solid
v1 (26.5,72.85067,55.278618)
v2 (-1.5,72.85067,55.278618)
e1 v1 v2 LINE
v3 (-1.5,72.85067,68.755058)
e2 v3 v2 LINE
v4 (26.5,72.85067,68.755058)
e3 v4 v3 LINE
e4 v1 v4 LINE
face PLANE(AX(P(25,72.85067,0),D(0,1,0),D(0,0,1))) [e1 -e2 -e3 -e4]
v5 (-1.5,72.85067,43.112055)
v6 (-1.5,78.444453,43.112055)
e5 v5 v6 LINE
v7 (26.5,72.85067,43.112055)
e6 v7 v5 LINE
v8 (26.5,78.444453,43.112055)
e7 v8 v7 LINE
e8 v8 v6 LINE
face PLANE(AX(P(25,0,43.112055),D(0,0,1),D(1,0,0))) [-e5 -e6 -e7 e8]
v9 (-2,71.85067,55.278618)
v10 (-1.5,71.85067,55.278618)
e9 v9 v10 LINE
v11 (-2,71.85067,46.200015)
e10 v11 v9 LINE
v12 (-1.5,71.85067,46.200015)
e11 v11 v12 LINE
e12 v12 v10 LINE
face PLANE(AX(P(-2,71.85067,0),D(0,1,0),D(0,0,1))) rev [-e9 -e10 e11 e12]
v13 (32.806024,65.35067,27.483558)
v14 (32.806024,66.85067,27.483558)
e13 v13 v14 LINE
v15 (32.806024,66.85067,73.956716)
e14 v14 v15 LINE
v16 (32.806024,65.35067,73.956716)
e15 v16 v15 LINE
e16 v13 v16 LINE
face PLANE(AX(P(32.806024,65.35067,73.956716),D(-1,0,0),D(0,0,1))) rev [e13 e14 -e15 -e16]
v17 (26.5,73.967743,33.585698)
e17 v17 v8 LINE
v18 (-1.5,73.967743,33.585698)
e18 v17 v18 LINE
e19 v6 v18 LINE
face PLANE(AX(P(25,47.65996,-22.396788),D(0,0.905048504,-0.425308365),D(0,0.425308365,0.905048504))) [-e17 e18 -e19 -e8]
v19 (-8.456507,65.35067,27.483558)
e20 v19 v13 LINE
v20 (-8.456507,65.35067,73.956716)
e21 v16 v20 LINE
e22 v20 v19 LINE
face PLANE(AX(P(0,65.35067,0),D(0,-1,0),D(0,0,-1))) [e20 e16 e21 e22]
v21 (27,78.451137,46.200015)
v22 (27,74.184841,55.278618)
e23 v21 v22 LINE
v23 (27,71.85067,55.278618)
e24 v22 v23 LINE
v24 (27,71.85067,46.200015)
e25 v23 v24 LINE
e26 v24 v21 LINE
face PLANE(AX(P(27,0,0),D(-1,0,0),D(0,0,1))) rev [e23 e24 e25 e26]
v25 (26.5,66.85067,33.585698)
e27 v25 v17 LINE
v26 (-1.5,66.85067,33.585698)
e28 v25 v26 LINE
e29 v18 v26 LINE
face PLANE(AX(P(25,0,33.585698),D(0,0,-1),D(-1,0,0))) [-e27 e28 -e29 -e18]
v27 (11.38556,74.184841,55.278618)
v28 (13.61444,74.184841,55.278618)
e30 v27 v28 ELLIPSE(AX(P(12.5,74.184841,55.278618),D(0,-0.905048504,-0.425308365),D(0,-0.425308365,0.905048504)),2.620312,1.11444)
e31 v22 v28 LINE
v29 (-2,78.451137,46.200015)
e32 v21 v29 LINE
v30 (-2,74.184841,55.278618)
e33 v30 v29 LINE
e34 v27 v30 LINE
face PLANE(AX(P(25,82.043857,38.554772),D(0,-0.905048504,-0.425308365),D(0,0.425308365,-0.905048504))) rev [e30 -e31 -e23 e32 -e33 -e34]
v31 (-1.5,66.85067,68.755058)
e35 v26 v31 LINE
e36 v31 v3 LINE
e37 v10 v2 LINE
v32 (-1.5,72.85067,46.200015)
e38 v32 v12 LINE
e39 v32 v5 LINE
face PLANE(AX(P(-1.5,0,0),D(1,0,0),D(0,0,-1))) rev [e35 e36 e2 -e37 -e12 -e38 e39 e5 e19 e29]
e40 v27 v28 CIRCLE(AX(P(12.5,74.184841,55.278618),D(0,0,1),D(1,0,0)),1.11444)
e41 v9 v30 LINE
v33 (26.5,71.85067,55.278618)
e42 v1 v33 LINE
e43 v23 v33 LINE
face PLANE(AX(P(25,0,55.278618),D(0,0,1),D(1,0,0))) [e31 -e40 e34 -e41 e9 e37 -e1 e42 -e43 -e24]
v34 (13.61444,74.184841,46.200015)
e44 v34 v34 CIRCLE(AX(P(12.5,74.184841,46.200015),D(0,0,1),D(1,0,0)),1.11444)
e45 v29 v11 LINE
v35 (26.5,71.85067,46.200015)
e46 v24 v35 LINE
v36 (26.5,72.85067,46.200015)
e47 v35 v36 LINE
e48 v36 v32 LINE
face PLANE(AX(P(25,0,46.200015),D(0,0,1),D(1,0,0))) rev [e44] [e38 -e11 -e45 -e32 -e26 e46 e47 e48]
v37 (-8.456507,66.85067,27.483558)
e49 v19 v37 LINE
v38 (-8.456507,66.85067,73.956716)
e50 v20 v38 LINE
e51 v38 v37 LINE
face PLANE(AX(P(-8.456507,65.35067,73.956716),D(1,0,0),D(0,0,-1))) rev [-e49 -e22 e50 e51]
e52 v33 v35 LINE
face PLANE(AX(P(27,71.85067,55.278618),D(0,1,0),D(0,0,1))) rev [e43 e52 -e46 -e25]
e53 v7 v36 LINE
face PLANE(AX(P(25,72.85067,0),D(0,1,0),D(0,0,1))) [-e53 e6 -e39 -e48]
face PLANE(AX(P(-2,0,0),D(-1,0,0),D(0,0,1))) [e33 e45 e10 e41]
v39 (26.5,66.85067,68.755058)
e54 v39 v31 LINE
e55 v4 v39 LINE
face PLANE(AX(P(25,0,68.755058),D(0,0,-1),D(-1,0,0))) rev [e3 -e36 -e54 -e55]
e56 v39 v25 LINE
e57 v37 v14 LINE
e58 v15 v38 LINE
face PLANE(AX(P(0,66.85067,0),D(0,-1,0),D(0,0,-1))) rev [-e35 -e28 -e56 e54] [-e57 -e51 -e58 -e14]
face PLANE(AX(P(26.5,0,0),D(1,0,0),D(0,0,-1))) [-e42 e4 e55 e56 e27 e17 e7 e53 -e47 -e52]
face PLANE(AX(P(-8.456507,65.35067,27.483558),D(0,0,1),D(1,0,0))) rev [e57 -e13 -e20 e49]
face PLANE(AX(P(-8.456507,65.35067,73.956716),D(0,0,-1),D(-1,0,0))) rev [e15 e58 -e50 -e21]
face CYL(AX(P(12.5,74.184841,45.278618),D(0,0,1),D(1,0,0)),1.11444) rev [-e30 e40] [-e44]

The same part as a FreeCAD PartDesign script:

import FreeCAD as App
import Part
import Sketcher
Q = App.Units.Quantity

doc = App.newDocument("Part")
params = doc.addObject("Spreadsheet::Sheet", "Params")
for row, (alias, value) in enumerate([
    ("sketch1_width", "6 mm"),
    ("pad1_length", "25 mm"),
    ("sketch2_width", "6 mm"),
    ("pad2_length", "1.5 mm"),
    ("sketch3_width", "6 mm"),
    ("pad3_length", "1.5 mm"),
    ("pad4_length", "1.5 mm"),
    ("pad5_length", "2 mm"),
    ("pad6_length", "2 mm"),
    ("sketch7_width", "1 mm"),
    ("pad7_length", "0.5 mm"),
    ("sketch8_width", "1 mm"),
    ("pad8_length", "0.5 mm"),
    ("pad9_length", "1.5 mm"),
    ("pad10_length", "1.5 mm"),
    ("pocket1_length", "10 mm"),
], start=1):
    params.set(f"A{row}", alias)
    params.set(f"B{row}", "=" + value)
    params.setAlias(f"B{row}", alias)

body = doc.addObject("PartDesign::Body", "Body")

sketch1 = body.newObject("Sketcher::SketchObject", "Sketch")
sketch1.AttachmentSupport = (doc.getObject("YZ_Plane"), [""])
sketch1.MapMode = "FlatFace"
sketch1.addGeometry([
    Part.LineSegment(App.Vector(72.85067, 46.200015, 0), App.Vector(78.451138, 46.200015, 0)),
    Part.LineSegment(App.Vector(78.451138, 46.200015, 0), App.Vector(74.184841, 55.278618, 0)),
    Part.LineSegment(App.Vector(74.184841, 55.278618, 0), App.Vector(72.85067, 55.278618, 0)),
    Part.LineSegment(App.Vector(72.85067, 55.278618, 0), App.Vector(72.85067, 68.755058, 0)),
    Part.LineSegment(App.Vector(72.85067, 68.755058, 0), App.Vector(66.85067, 68.755058, 0)),
    Part.LineSegment(App.Vector(66.85067, 68.755058, 0), App.Vector(66.85067, 33.585698, 0)),
    Part.LineSegment(App.Vector(66.85067, 33.585698, 0), App.Vector(72.85067, 33.585698, 0)),
    Part.LineSegment(App.Vector(72.85067, 33.585698, 0), App.Vector(73.967743, 33.585698, 0)),
    Part.LineSegment(App.Vector(73.967743, 33.585698, 0), App.Vector(78.444453, 43.112055, 0)),
    Part.LineSegment(App.Vector(78.444453, 43.112055, 0), App.Vector(72.85067, 43.112055, 0)),
    Part.LineSegment(App.Vector(72.85067, 43.112055, 0), App.Vector(72.85067, 46.200015, 0)),
], False)
sketch1.addConstraint([
    Sketcher.Constraint("Coincident", 0, 2, 1, 1),
    Sketcher.Constraint("Coincident", 1, 2, 2, 1),
    Sketcher.Constraint("Coincident", 2, 2, 3, 1),
    Sketcher.Constraint("Coincident", 3, 2, 4, 1),
    Sketcher.Constraint("Coincident", 4, 2, 5, 1),
    Sketcher.Constraint("Coincident", 5, 2, 6, 1),
    Sketcher.Constraint("Coincident", 6, 2, 7, 1),
    Sketcher.Constraint("Coincident", 7, 2, 8, 1),
    Sketcher.Constraint("Coincident", 8, 2, 9, 1),
    Sketcher.Constraint("Coincident", 9, 2, 10, 1),
    Sketcher.Constraint("Coincident", 10, 2, 0, 1),
    Sketcher.Constraint("Horizontal", 0),
    Sketcher.Constraint("Horizontal", 2),
    Sketcher.Constraint("Vertical", 3),
    Sketcher.Constraint("Horizontal", 4),
    Sketcher.Constraint("Vertical", 5),
    Sketcher.Constraint("Horizontal", 6),
    Sketcher.Constraint("Horizontal", 7),
    Sketcher.Constraint("Horizontal", 9),
    Sketcher.Constraint("Vertical", 10),
    Sketcher.Constraint("Vertical", 3, 2, 6, 2),
    Sketcher.Constraint("Vertical", 6, 2, 9, 2),
    Sketcher.Constraint("DistanceX", 4, 2, 4, 1, Q("6 mm")),
    Sketcher.Constraint("DistanceX", 2, 2, 2, 1, Q("1.334171 mm")),
    Sketcher.Constraint("DistanceY", 3, 1, 3, 2, Q("13.47644 mm")),
    Sketcher.Constraint("DistanceY", 5, 2, 5, 1, Q("35.169359 mm")),
    Sketcher.Constraint("DistanceY", 10, 1, 10, 2, Q("3.08796 mm")),
    Sketcher.Constraint("DistanceY", -1, 1, 5, 2, Q("33.585698 mm")),
    Sketcher.Constraint("DistanceX", 0, 1, 0, 2, Q("5.600468 mm")),
    Sketcher.Constraint("DistanceX", 7, 1, 7, 2, Q("1.117074 mm")),
    Sketcher.Constraint("DistanceX", 9, 2, 9, 1, Q("5.593783 mm")),
    Sketcher.Constraint("DistanceX", -1, 1, 1, 2, Q("74.184841 mm")),
    Sketcher.Constraint("Distance", 1, Q("10.031068 mm")),
])
sketch1.setExpression("Constraints[22]", "Params.sketch1_width")
pad1 = body.newObject("PartDesign::Pad", "Pad")
pad1.Profile = sketch1
pad1.setExpression("Length", "Params.pad1_length")

sketch2 = body.newObject("Sketcher::SketchObject", "Sketch001")
sketch2.AttachmentSupport = (doc.getObject("YZ_Plane"), [""])
sketch2.MapMode = "FlatFace"
sketch2.AttachmentOffset = App.Placement(App.Vector(0, 0, 25), App.Rotation())
sketch2.addGeometry([
    Part.LineSegment(App.Vector(72.85067, 68.755058, 0), App.Vector(66.85067, 68.755058, 0)),
    Part.LineSegment(App.Vector(66.85067, 68.755058, 0), App.Vector(66.85067, 33.585698, 0)),
    Part.LineSegment(App.Vector(66.85067, 33.585698, 0), App.Vector(72.85067, 33.585698, 0)),
    Part.LineSegment(App.Vector(72.85067, 33.585698, 0), App.Vector(72.85067, 68.755058, 0)),
], False)
sketch2.addConstraint([
    Sketcher.Constraint("Coincident", 0, 2, 1, 1),
    Sketcher.Constraint("Coincident", 1, 2, 2, 1),
    Sketcher.Constraint("Coincident", 2, 2, 3, 1),
    Sketcher.Constraint("Coincident", 3, 2, 0, 1),
    Sketcher.Constraint("Horizontal", 0),
    Sketcher.Constraint("Vertical", 1),
    Sketcher.Constraint("Horizontal", 2),
    Sketcher.Constraint("Vertical", 3),
    Sketcher.Constraint("DistanceX", 0, 2, 0, 1, Q("6 mm")),
    Sketcher.Constraint("DistanceY", 1, 2, 1, 1, Q("35.169359 mm")),
    Sketcher.Constraint("DistanceY", -1, 1, 1, 2, Q("33.585698 mm")),
    Sketcher.Constraint("DistanceX", -1, 1, 0, 2, Q("66.85067 mm")),
])
sketch2.setExpression("Constraints[8]", "Params.sketch2_width")
pad2 = body.newObject("PartDesign::Pad", "Pad001")
pad2.Profile = sketch2
pad2.setExpression("Length", "Params.pad2_length")

sketch3 = body.newObject("Sketcher::SketchObject", "Sketch002")
sketch3.AttachmentSupport = (doc.getObject("YZ_Plane"), [""])
sketch3.MapMode = "FlatFace"
sketch3.addGeometry([
    Part.LineSegment(App.Vector(72.85067, 33.585698, 0), App.Vector(66.85067, 33.585698, 0)),
    Part.LineSegment(App.Vector(66.85067, 33.585698, 0), App.Vector(66.85067, 68.755058, 0)),
    Part.LineSegment(App.Vector(66.85067, 68.755058, 0), App.Vector(72.85067, 68.755058, 0)),
    Part.LineSegment(App.Vector(72.85067, 68.755058, 0), App.Vector(72.85067, 33.585698, 0)),
], False)
sketch3.addConstraint([
    Sketcher.Constraint("Coincident", 0, 2, 1, 1),
    Sketcher.Constraint("Coincident", 1, 2, 2, 1),
    Sketcher.Constraint("Coincident", 2, 2, 3, 1),
    Sketcher.Constraint("Coincident", 3, 2, 0, 1),
    Sketcher.Constraint("Horizontal", 0),
    Sketcher.Constraint("Vertical", 1),
    Sketcher.Constraint("Horizontal", 2),
    Sketcher.Constraint("Vertical", 3),
    Sketcher.Constraint("DistanceX", 0, 2, 0, 1, Q("6 mm")),
    Sketcher.Constraint("DistanceY", 1, 1, 1, 2, Q("35.169359 mm")),
    Sketcher.Constraint("DistanceY", -1, 1, 0, 2, Q("33.585698 mm")),
    Sketcher.Constraint("DistanceX", -1, 1, 0, 2, Q("66.85067 mm")),
])
sketch3.setExpression("Constraints[8]", "Params.sketch3_width")
pad3 = body.newObject("PartDesign::Pad", "Pad002")
pad3.Profile = sketch3
pad3.setExpression("Length", "Params.pad3_length")
pad3.Reversed = True

sketch4 = body.newObject("Sketcher::SketchObject", "Sketch003")
sketch4.AttachmentSupport = (doc.getObject("XZ_Plane"), [""])
sketch4.MapMode = "FlatFace"
sketch4.AttachmentOffset = App.Placement(App.Vector(0, 0, -66.85067), App.Rotation())
sketch4.addGeometry([
    Part.LineSegment(App.Vector(-8.456507, 73.956716, 0), App.Vector(-8.456507, 27.483558, 0)),
    Part.LineSegment(App.Vector(-8.456507, 27.483558, 0), App.Vector(32.806024, 27.483558, 0)),
    Part.LineSegment(App.Vector(32.806024, 27.483558, 0), App.Vector(32.806024, 73.956716, 0)),
    Part.LineSegment(App.Vector(32.806024, 73.956716, 0), App.Vector(-8.456507, 73.956716, 0)),
], False)
sketch4.addConstraint([
    Sketcher.Constraint("Coincident", 0, 2, 1, 1),
    Sketcher.Constraint("Coincident", 1, 2, 2, 1),
    Sketcher.Constraint("Coincident", 2, 2, 3, 1),
    Sketcher.Constraint("Coincident", 3, 2, 0, 1),
    Sketcher.Constraint("Vertical", 0),
    Sketcher.Constraint("Horizontal", 1),
    Sketcher.Constraint("Vertical", 2),
    Sketcher.Constraint("Horizontal", 3),
    Sketcher.Constraint("DistanceX", 1, 1, 1, 2, Q("41.262531 mm")),
    Sketcher.Constraint("DistanceY", 0, 2, 0, 1, Q("46.473158 mm")),
    Sketcher.Constraint("DistanceX", 0, 2, -1, 1, Q("8.456507 mm")),
    Sketcher.Constraint("DistanceY", -1, 1, 0, 2, Q("27.483558 mm")),
])
pad4 = body.newObject("PartDesign::Pad", "Pad003")
pad4.Profile = sketch4
pad4.setExpression("Length", "Params.pad4_length")

sketch5 = body.newObject("Sketcher::SketchObject", "Sketch004")
sketch5.AttachmentSupport = (doc.getObject("YZ_Plane"), [""])
sketch5.MapMode = "FlatFace"
sketch5.AttachmentOffset = App.Placement(App.Vector(0, 0, 25), App.Rotation())
sketch5.addGeometry([
    Part.LineSegment(App.Vector(74.184841, 55.278618, 0), App.Vector(72.85067, 55.278618, 0)),
    Part.LineSegment(App.Vector(72.85067, 55.278618, 0), App.Vector(72.85067, 46.200015, 0)),
    Part.LineSegment(App.Vector(72.85067, 46.200015, 0), App.Vector(78.451138, 46.200015, 0)),
    Part.LineSegment(App.Vector(78.451138, 46.200015, 0), App.Vector(74.184841, 55.278618, 0)),
], False)
sketch5.addConstraint([
    Sketcher.Constraint("Coincident", 0, 2, 1, 1),
    Sketcher.Constraint("Coincident", 1, 2, 2, 1),
    Sketcher.Constraint("Coincident", 2, 2, 3, 1),
    Sketcher.Constraint("Coincident", 3, 2, 0, 1),
    Sketcher.Constraint("Horizontal", 0),
    Sketcher.Constraint("Vertical", 1),
    Sketcher.Constraint("Horizontal", 2),
    Sketcher.Constraint("DistanceX", 0, 2, 0, 1, Q("1.334171 mm")),
    Sketcher.Constraint("DistanceX", 2, 1, 2, 2, Q("5.600468 mm")),
    Sketcher.Constraint("DistanceY", 1, 2, 1, 1, Q("9.078603 mm")),
    Sketcher.Constraint("DistanceX", -1, 1, 0, 2, Q("72.85067 mm")),
    Sketcher.Constraint("DistanceY", -1, 1, 0, 2, Q("55.278618 mm")),
])
pad5 = body.newObject("PartDesign::Pad", "Pad004")
pad5.Profile = sketch5
pad5.setExpression("Length", "Params.pad5_length")

sketch6 = body.newObject("Sketcher::SketchObject", "Sketch005")
sketch6.AttachmentSupport = (doc.getObject("YZ_Plane"), [""])
sketch6.MapMode = "FlatFace"
sketch6.addGeometry([
    Part.LineSegment(App.Vector(72.85067, 46.200015, 0), App.Vector(72.85067, 55.278618, 0)),
    Part.LineSegment(App.Vector(72.85067, 55.278618, 0), App.Vector(74.184841, 55.278618, 0)),
    Part.LineSegment(App.Vector(74.184841, 55.278618, 0), App.Vector(78.451138, 46.200015, 0)),
    Part.LineSegment(App.Vector(78.451138, 46.200015, 0), App.Vector(72.85067, 46.200015, 0)),
], False)
sketch6.addConstraint([
    Sketcher.Constraint("Coincident", 0, 2, 1, 1),
    Sketcher.Constraint("Coincident", 1, 2, 2, 1),
    Sketcher.Constraint("Coincident", 2, 2, 3, 1),
    Sketcher.Constraint("Coincident", 3, 2, 0, 1),
    Sketcher.Constraint("Vertical", 0),
    Sketcher.Constraint("Horizontal", 1),
    Sketcher.Constraint("Horizontal", 3),
    Sketcher.Constraint("DistanceX", 1, 1, 1, 2, Q("1.334171 mm")),
    Sketcher.Constraint("DistanceX", 3, 2, 3, 1, Q("5.600468 mm")),
    Sketcher.Constraint("DistanceY", 0, 1, 0, 2, Q("9.078603 mm")),
    Sketcher.Constraint("DistanceX", -1, 1, 0, 2, Q("72.85067 mm")),
    Sketcher.Constraint("DistanceY", -1, 1, 0, 2, Q("55.278618 mm")),
])
pad6 = body.newObject("PartDesign::Pad", "Pad005")
pad6.Profile = sketch6
pad6.setExpression("Length", "Params.pad6_length")
pad6.Reversed = True

sketch7 = body.newObject("Sketcher::SketchObject", "Sketch006")
sketch7.AttachmentSupport = (doc.getObject("YZ_Plane"), [""])
sketch7.MapMode = "FlatFace"
sketch7.AttachmentOffset = App.Placement(App.Vector(0, 0, 26.5), App.Rotation())
sketch7.addGeometry([
    Part.LineSegment(App.Vector(72.85067, 55.278618, 0), App.Vector(71.85067, 55.278618, 0)),
    Part.LineSegment(App.Vector(71.85067, 55.278618, 0), App.Vector(71.85067, 46.200015, 0)),
    Part.LineSegment(App.Vector(71.85067, 46.200015, 0), App.Vector(72.85067, 46.200015, 0)),
    Part.LineSegment(App.Vector(72.85067, 46.200015, 0), App.Vector(72.85067, 55.278618, 0)),
], False)
sketch7.addConstraint([
    Sketcher.Constraint("Coincident", 0, 2, 1, 1),
    Sketcher.Constraint("Coincident", 1, 2, 2, 1),
    Sketcher.Constraint("Coincident", 2, 2, 3, 1),
    Sketcher.Constraint("Coincident", 3, 2, 0, 1),
    Sketcher.Constraint("Horizontal", 0),
    Sketcher.Constraint("Vertical", 1),
    Sketcher.Constraint("Horizontal", 2),
    Sketcher.Constraint("Vertical", 3),
    Sketcher.Constraint("DistanceX", 0, 2, 0, 1, Q("1 mm")),
    Sketcher.Constraint("DistanceY", 1, 2, 1, 1, Q("9.078603 mm")),
    Sketcher.Constraint("DistanceX", -1, 1, 0, 2, Q("71.85067 mm")),
    Sketcher.Constraint("DistanceY", -1, 1, 0, 2, Q("55.278618 mm")),
])
sketch7.setExpression("Constraints[8]", "Params.sketch7_width")
pad7 = body.newObject("PartDesign::Pad", "Pad006")
pad7.Profile = sketch7
pad7.setExpression("Length", "Params.pad7_length")

sketch8 = body.newObject("Sketcher::SketchObject", "Sketch007")
sketch8.AttachmentSupport = (doc.getObject("YZ_Plane"), [""])
sketch8.MapMode = "FlatFace"
sketch8.AttachmentOffset = App.Placement(App.Vector(0, 0, -1.5), App.Rotation())
sketch8.addGeometry([
    Part.LineSegment(App.Vector(72.85067, 46.200015, 0), App.Vector(71.85067, 46.200015, 0)),
    Part.LineSegment(App.Vector(71.85067, 46.200015, 0), App.Vector(71.85067, 55.278618, 0)),
    Part.LineSegment(App.Vector(71.85067, 55.278618, 0), App.Vector(72.85067, 55.278618, 0)),
    Part.LineSegment(App.Vector(72.85067, 55.278618, 0), App.Vector(72.85067, 46.200015, 0)),
], False)
sketch8.addConstraint([
    Sketcher.Constraint("Coincident", 0, 2, 1, 1),
    Sketcher.Constraint("Coincident", 1, 2, 2, 1),
    Sketcher.Constraint("Coincident", 2, 2, 3, 1),
    Sketcher.Constraint("Coincident", 3, 2, 0, 1),
    Sketcher.Constraint("Horizontal", 0),
    Sketcher.Constraint("Vertical", 1),
    Sketcher.Constraint("Horizontal", 2),
    Sketcher.Constraint("Vertical", 3),
    Sketcher.Constraint("DistanceX", 0, 2, 0, 1, Q("1 mm")),
    Sketcher.Constraint("DistanceY", 1, 1, 1, 2, Q("9.078603 mm")),
    Sketcher.Constraint("DistanceX", -1, 1, 0, 2, Q("71.85067 mm")),
    Sketcher.Constraint("DistanceY", -1, 1, 0, 2, Q("46.200015 mm")),
])
sketch8.setExpression("Constraints[8]", "Params.sketch8_width")
pad8 = body.newObject("PartDesign::Pad", "Pad007")
pad8.Profile = sketch8
pad8.setExpression("Length", "Params.pad8_length")
pad8.Reversed = True

sketch9 = body.newObject("Sketcher::SketchObject", "Sketch008")
sketch9.AttachmentSupport = (doc.getObject("YZ_Plane"), [""])
sketch9.MapMode = "FlatFace"
sketch9.AttachmentOffset = App.Placement(App.Vector(0, 0, 25), App.Rotation())
sketch9.addGeometry([
    Part.LineSegment(App.Vector(72.85067, 43.112055, 0), App.Vector(72.85067, 33.585698, 0)),
    Part.LineSegment(App.Vector(72.85067, 33.585698, 0), App.Vector(73.967743, 33.585698, 0)),
    Part.LineSegment(App.Vector(73.967743, 33.585698, 0), App.Vector(78.444453, 43.112055, 0)),
    Part.LineSegment(App.Vector(78.444453, 43.112055, 0), App.Vector(72.85067, 43.112055, 0)),
], False)
sketch9.addConstraint([
    Sketcher.Constraint("Coincident", 0, 2, 1, 1),
    Sketcher.Constraint("Coincident", 1, 2, 2, 1),
    Sketcher.Constraint("Coincident", 2, 2, 3, 1),
    Sketcher.Constraint("Coincident", 3, 2, 0, 1),
    Sketcher.Constraint("Vertical", 0),
    Sketcher.Constraint("Horizontal", 1),
    Sketcher.Constraint("Horizontal", 3),
    Sketcher.Constraint("DistanceY", -1, 1, 0, 2, Q("33.585698 mm")),
    Sketcher.Constraint("DistanceX", 1, 1, 1, 2, Q("1.117074 mm")),
    Sketcher.Constraint("DistanceX", 3, 2, 3, 1, Q("5.593783 mm")),
    Sketcher.Constraint("DistanceY", 0, 2, 0, 1, Q("9.526357 mm")),
    Sketcher.Constraint("DistanceX", -1, 1, 0, 2, Q("72.85067 mm")),
])
pad9 = body.newObject("PartDesign::Pad", "Pad008")
pad9.Profile = sketch9
pad9.setExpression("Length", "Params.pad9_length")

sketch10 = body.newObject("Sketcher::SketchObject", "Sketch009")
sketch10.AttachmentSupport = (doc.getObject("YZ_Plane"), [""])
sketch10.MapMode = "FlatFace"
sketch10.addGeometry([
    Part.LineSegment(App.Vector(72.85067, 33.585698, 0), App.Vector(72.85067, 43.112055, 0)),
    Part.LineSegment(App.Vector(72.85067, 43.112055, 0), App.Vector(78.444453, 43.112055, 0)),
    Part.LineSegment(App.Vector(78.444453, 43.112055, 0), App.Vector(73.967743, 33.585698, 0)),
    Part.LineSegment(App.Vector(73.967743, 33.585698, 0), App.Vector(72.85067, 33.585698, 0)),
], False)
sketch10.addConstraint([
    Sketcher.Constraint("Coincident", 0, 2, 1, 1),
    Sketcher.Constraint("Coincident", 1, 2, 2, 1),
    Sketcher.Constraint("Coincident", 2, 2, 3, 1),
    Sketcher.Constraint("Coincident", 3, 2, 0, 1),
    Sketcher.Constraint("Vertical", 0),
    Sketcher.Constraint("Horizontal", 1),
    Sketcher.Constraint("Horizontal", 3),
    Sketcher.Constraint("DistanceY", -1, 1, 2, 2, Q("33.585698 mm")),
    Sketcher.Constraint("DistanceX", 1, 1, 1, 2, Q("5.593783 mm")),
    Sketcher.Constraint("DistanceX", 3, 2, 3, 1, Q("1.117074 mm")),
    Sketcher.Constraint("DistanceY", 0, 1, 0, 2, Q("9.526357 mm")),
    Sketcher.Constraint("DistanceX", -1, 1, 0, 2, Q("72.85067 mm")),
])
pad10 = body.newObject("PartDesign::Pad", "Pad009")
pad10.Profile = sketch10
pad10.setExpression("Length", "Params.pad10_length")
pad10.Reversed = True

sketch11 = body.newObject("Sketcher::SketchObject", "Sketch010")
sketch11.AttachmentSupport = (doc.getObject("XY_Plane"), [""])
sketch11.MapMode = "FlatFace"
sketch11.AttachmentOffset = App.Placement(App.Vector(0, 0, 55.278618), App.Rotation())
sketch11.addGeometry(Part.Circle(App.Vector(12.5, 74.184841, 0), App.Vector(0, 0, 1), 1.11444), False)
sketch11.addConstraint([
    Sketcher.Constraint("DistanceX", -1, 1, 0, 3, Q("12.5 mm")),
    Sketcher.Constraint("Diameter", 0, Q("2.228881 mm")),
    Sketcher.Constraint("DistanceY", -1, 1, 0, 3, Q("74.184841 mm")),
])
pocket1 = body.newObject("PartDesign::Pocket", "Pocket")
pocket1.Profile = sketch11
pocket1.setExpression("Length", "Params.pocket1_length")

doc.recompute()
